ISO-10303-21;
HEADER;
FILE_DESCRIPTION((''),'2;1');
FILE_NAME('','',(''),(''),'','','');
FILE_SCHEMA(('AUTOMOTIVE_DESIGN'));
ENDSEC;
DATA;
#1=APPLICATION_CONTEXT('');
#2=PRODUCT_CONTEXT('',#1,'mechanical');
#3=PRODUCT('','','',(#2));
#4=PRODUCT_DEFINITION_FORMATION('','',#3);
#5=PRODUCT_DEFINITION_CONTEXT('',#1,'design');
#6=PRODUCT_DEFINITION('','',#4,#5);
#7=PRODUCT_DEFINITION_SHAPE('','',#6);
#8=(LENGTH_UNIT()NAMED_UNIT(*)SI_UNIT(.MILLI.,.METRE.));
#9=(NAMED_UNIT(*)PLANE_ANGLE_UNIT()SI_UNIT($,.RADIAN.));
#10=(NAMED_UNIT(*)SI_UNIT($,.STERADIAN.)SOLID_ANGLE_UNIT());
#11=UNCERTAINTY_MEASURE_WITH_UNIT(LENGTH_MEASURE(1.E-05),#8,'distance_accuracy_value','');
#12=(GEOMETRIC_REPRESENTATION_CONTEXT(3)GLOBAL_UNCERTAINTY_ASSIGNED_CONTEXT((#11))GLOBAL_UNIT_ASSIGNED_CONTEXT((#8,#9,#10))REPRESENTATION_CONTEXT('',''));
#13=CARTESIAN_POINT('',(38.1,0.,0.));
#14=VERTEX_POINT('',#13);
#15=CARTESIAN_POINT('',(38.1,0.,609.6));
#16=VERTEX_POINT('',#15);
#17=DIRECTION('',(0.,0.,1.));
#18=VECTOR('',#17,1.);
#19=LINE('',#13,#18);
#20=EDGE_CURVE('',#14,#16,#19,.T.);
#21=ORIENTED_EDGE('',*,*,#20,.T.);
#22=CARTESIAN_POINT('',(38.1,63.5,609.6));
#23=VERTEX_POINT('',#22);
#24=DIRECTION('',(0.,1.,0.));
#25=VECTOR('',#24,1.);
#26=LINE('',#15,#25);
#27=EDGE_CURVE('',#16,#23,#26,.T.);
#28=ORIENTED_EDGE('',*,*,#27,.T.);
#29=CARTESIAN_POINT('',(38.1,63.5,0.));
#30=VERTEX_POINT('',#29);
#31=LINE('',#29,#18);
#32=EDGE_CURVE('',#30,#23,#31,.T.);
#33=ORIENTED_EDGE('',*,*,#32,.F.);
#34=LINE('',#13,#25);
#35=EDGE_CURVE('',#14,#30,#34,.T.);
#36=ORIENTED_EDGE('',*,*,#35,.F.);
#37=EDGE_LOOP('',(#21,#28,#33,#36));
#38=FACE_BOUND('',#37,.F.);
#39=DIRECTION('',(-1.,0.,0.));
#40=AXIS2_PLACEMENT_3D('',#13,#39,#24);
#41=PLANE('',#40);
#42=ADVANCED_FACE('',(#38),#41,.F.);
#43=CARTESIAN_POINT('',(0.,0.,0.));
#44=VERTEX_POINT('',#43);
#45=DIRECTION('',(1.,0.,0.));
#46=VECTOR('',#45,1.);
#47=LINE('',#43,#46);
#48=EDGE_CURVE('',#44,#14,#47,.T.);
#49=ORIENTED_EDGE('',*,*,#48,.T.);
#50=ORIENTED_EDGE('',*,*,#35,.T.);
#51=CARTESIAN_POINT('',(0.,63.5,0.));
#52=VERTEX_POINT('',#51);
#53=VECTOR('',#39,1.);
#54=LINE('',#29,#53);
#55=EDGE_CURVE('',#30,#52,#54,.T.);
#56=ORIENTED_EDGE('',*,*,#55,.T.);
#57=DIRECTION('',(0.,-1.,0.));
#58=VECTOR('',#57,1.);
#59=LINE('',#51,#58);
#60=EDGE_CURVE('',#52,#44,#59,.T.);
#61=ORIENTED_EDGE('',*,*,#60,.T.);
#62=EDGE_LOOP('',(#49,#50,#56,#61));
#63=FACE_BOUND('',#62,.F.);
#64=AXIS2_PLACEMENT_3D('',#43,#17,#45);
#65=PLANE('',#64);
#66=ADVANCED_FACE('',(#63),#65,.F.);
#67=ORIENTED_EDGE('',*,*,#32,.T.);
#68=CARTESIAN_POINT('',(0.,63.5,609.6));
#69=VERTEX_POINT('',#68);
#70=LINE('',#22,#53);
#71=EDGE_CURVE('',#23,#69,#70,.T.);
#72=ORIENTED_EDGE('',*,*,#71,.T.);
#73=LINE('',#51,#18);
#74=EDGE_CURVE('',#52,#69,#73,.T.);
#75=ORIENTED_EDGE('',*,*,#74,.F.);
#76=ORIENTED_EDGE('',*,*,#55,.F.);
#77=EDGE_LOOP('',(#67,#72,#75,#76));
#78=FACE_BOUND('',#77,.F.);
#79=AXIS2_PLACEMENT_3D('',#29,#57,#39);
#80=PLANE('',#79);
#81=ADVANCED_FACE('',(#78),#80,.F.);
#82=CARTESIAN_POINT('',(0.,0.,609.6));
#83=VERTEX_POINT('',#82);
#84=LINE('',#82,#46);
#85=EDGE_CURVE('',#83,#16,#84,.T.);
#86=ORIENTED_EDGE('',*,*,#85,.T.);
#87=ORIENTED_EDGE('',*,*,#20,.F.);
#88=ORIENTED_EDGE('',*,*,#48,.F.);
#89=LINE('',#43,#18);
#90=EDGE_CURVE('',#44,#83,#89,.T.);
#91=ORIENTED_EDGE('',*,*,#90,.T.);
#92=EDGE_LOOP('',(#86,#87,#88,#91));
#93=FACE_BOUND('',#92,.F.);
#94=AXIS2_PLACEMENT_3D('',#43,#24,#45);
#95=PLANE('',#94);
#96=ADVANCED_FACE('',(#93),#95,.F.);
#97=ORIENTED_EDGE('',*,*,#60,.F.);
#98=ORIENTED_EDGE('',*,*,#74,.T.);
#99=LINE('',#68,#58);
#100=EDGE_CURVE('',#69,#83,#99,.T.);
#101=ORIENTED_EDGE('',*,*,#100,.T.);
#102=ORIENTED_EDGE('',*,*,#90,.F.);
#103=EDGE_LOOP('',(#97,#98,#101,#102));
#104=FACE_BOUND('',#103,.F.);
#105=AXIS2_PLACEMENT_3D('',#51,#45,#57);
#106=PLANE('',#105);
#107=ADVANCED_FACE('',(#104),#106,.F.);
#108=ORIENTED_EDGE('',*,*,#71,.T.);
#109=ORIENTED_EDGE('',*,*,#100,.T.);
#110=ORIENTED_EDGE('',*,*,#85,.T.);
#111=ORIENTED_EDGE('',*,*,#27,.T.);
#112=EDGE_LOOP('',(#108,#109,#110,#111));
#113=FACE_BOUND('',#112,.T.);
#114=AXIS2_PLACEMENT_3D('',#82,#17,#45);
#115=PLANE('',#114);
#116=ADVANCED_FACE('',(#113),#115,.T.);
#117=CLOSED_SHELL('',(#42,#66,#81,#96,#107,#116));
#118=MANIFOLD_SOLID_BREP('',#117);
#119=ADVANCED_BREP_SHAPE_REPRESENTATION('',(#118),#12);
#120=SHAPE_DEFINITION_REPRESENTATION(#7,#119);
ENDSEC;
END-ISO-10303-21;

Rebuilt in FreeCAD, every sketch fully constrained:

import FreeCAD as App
import Part
import Sketcher
from FreeCAD import Vector
Q = App.Units.Quantity

doc = App.newDocument("Part")
body = doc.addObject("PartDesign::Body", "Body")

# Sketch on XY plane
sketch1 = body.newObject("Sketcher::SketchObject", "Sketch")
sketch1.AttachmentSupport = (doc.getObject("XY_Plane"), [""])
sketch1.MapMode = "FlatFace"
sketch1.addGeometry(Part.LineSegment(Vector(0, 63.5, 0), Vector(0, 0, 0)), False)
sketch1.addGeometry(Part.LineSegment(Vector(0, 0, 0), Vector(38.1, 0, 0)), False)
sketch1.addGeometry(Part.LineSegment(Vector(38.1, 0, 0), Vector(38.1, 63.5, 0)), False)
sketch1.addGeometry(Part.LineSegment(Vector(38.1, 63.5, 0), Vector(0, 63.5, 0)), False)
sketch1.addConstraint(Sketcher.Constraint("Coincident", 0, 2, 1, 1))
sketch1.addConstraint(Sketcher.Constraint("Coincident", 1, 2, 2, 1))
sketch1.addConstraint(Sketcher.Constraint("Coincident", 2, 2, 3, 1))
sketch1.addConstraint(Sketcher.Constraint("Coincident", 3, 2, 0, 1))
sketch1.addConstraint(Sketcher.Constraint("Vertical", 0))
sketch1.addConstraint(Sketcher.Constraint("Horizontal", 1))
sketch1.addConstraint(Sketcher.Constraint("Vertical", 2))
sketch1.addConstraint(Sketcher.Constraint("Horizontal", 3))
sketch1.addConstraint(Sketcher.Constraint("Coincident", 0, 2, -1, 1))
sketch1.addConstraint(Sketcher.Constraint("DistanceX", 1, 1, 1, 2, Q("1.5 in")))
sketch1.addConstraint(Sketcher.Constraint("DistanceY", 0, 2, 0, 1, Q("2.5 in")))
pad1 = body.newObject("PartDesign::Pad", "Pad")
pad1.Profile = sketch1
pad1.Length = Q("24 in")

doc.recompute()
